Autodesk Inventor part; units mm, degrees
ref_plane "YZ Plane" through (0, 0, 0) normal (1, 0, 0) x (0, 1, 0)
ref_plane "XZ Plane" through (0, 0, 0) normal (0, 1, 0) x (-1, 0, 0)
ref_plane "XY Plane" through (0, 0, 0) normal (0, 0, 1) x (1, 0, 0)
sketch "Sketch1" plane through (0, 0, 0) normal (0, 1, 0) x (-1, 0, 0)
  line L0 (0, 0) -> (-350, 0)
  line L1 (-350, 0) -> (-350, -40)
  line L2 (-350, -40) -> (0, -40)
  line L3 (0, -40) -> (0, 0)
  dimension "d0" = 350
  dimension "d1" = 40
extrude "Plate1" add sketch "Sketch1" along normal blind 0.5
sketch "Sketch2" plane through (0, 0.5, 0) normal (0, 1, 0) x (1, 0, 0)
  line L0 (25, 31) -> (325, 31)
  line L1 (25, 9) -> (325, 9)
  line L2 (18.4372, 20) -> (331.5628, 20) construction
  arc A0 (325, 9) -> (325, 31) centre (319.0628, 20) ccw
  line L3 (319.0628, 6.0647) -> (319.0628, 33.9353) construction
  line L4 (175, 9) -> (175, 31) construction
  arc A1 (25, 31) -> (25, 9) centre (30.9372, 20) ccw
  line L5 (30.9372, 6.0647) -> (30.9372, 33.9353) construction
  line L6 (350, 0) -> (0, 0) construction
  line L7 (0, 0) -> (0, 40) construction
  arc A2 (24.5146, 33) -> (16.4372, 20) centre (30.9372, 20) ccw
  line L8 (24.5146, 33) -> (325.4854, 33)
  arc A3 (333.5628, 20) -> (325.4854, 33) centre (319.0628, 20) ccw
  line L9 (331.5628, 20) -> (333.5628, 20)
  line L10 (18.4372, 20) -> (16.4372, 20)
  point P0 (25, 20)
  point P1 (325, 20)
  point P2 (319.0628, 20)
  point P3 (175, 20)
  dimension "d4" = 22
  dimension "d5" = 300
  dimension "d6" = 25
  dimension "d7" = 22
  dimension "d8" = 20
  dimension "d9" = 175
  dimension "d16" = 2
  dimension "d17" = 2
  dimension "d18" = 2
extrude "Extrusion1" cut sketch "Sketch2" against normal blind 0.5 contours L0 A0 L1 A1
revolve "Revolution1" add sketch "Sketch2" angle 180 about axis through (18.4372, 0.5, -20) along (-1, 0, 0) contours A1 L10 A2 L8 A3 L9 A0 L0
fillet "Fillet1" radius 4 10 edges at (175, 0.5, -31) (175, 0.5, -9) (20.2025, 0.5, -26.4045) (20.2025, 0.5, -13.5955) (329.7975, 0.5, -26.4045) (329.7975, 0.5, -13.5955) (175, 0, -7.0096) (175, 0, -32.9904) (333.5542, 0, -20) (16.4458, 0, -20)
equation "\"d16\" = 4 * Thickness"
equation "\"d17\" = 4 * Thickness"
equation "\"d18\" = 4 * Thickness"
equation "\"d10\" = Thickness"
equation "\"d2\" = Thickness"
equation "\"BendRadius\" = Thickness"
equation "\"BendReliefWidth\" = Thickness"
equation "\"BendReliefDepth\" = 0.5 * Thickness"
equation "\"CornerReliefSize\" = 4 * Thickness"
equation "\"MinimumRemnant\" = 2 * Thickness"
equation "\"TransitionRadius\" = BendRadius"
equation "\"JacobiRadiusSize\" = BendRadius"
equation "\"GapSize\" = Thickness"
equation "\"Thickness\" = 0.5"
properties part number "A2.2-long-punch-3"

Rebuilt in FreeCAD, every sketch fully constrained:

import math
import FreeCAD as App
import Part
import Sketcher
from FreeCAD import Vector


def edges_at(feature, points):
    """Names of the edges that pass closest to the given points."""
    edges = feature.Shape.Edges
    near = lambda p: min(range(len(edges)), key=lambda i: edges[i].distToShape(Part.Vertex(*p))[0])
    return sorted({f"Edge{near(p) + 1}" for p in points})


def add_polygon(sketch, points):
    """Adds a closed chain of lines whose ends are joined by coincident constraints."""
    first, n = sketch.GeometryCount, len(points)
    for a, b in zip(points, points[1:] + points[:1]):
        sketch.addGeometry(Part.LineSegment(App.Vector(*a, 0), App.Vector(*b, 0)), False)
    for i in range(n):
        sketch.addConstraint(Sketcher.Constraint("Coincident", first + i, 2, first + (i + 1) % n, 1))

doc = App.newDocument("Part")
body = doc.addObject("PartDesign::Body", "Body")

# Sketch on XZ plane
sketch1 = body.newObject("Sketcher::SketchObject", "Sketch")
sketch1.AttachmentSupport = (doc.getObject("XZ_Plane"), [""])
sketch1.MapMode = "FlatFace"
add_polygon(sketch1, [(0, -40), (0, 0), (350, 0), (350, -40)])  # lines 0-3
sketch1.addConstraint(Sketcher.Constraint("Vertical", 0))
sketch1.addConstraint(Sketcher.Constraint("Horizontal", 1))
sketch1.addConstraint(Sketcher.Constraint("Vertical", 2))
sketch1.addConstraint(Sketcher.Constraint("Horizontal", 3))
sketch1.addConstraint(Sketcher.Constraint("Coincident", 0, 2, -1, 1))
sketch1.addConstraint(Sketcher.Constraint("DistanceX", 1, 1, 1, 2, 350.0))
sketch1.addConstraint(Sketcher.Constraint("DistanceY", 0, 1, 0, 2, 40.0))
pad1 = body.newObject("PartDesign::Pad", "Pad")
pad1.Profile = sketch1
pad1.Length = 0.5
pad1.Reversed = True

# Sketch on XZ plane
sketch2 = body.newObject("Sketcher::SketchObject", "Sketch001")
sketch2.AttachmentSupport = (doc.getObject("XZ_Plane"), [""])
sketch2.MapMode = "FlatFace"
sketch2.AttachmentOffset = App.Placement(Vector(0, 0, -0.5), App.Rotation())
sketch2.addGeometry(Part.LineSegment(Vector(325, -31, 0), Vector(25, -31, 0)), False)
sketch2.addGeometry(Part.ArcOfCircle(Part.Circle(Vector(30.9372, -20, 0), Vector(0, 0, 1), 12.500014), math.radians(118.357753), math.radians(241.642247)), False)
sketch2.addGeometry(Part.LineSegment(Vector(25, -9, 0), Vector(325, -9, 0)), False)
sketch2.addGeometry(Part.ArcOfCircle(Part.Circle(Vector(319.0628, -20, 0), Vector(0, 0, 1), 12.500014), math.radians(-61.642247), math.radians(61.642247)), False)
sketch2.addConstraint(Sketcher.Constraint("Coincident", 0, 2, 1, 2))
sketch2.addConstraint(Sketcher.Constraint("Coincident", 1, 1, 2, 1))
sketch2.addConstraint(Sketcher.Constraint("Coincident", 2, 2, 3, 2))
sketch2.addConstraint(Sketcher.Constraint("Coincident", 3, 1, 0, 1))
sketch2.addConstraint(Sketcher.Constraint("Horizontal", 0))
sketch2.addConstraint(Sketcher.Constraint("Horizontal", 2))
sketch2.addConstraint(Sketcher.Constraint("Equal", 1, 3))
sketch2.addConstraint(Sketcher.Constraint("Horizontal", 1, 3, 3, 3))
sketch2.addConstraint(Sketcher.Constraint("Vertical", 0, 2, 1, 1))
sketch2.addConstraint(Sketcher.Constraint("Radius", 1, 12.5))
sketch2.addConstraint(Sketcher.Constraint("DistanceX", 0, 2, 0, 1, 300.0))
sketch2.addConstraint(Sketcher.Constraint("DistanceY", 1, 3, -1, 1, 20.0))
sketch2.addConstraint(Sketcher.Constraint("DistanceX", -1, 1, 0, 2, 25.0))
sketch2.addConstraint(Sketcher.Constraint("DistanceY", 0, 2, 1, 1, 22.0))
pocket1 = body.newObject("PartDesign::Pocket", "Pocket")
pocket1.Profile = sketch2
pocket1.Length = 0.5
pocket1.Reversed = True

# Sketch on XZ plane
sketch3 = body.newObject("Sketcher::SketchObject", "Sketch002")
sketch3.AttachmentSupport = (doc.getObject("XZ_Plane"), [""])
sketch3.MapMode = "FlatFace"
sketch3.AttachmentOffset = App.Placement(Vector(0, 0, -0.5), App.Rotation())
sketch3.addGeometry(Part.ArcOfCircle(Part.Circle(Vector(30.9372, -20, 0), Vector(0, 0, 1), 12.500014), math.radians(180), math.radians(241.642247)), False)
sketch3.addGeometry(Part.LineSegment(Vector(25, -31, 0), Vector(325, -31, 0)), False)
sketch3.addGeometry(Part.ArcOfCircle(Part.Circle(Vector(319.0628, -20, 0), Vector(0, 0, 1), 12.500014), math.radians(-61.642247), math.radians(0)), False)
sketch3.addGeometry(Part.LineSegment(Vector(331.5628, -20, 0), Vector(333.5628, -20, 0)), False)
sketch3.addGeometry(Part.ArcOfCircle(Part.Circle(Vector(319.0628, -20, 0), Vector(0, 0, 1), 14.5), math.radians(-63.708502), math.radians(0)), False)
sketch3.addGeometry(Part.LineSegment(Vector(325.4854, -33, 0), Vector(24.5146, -33, 0)), False)
sketch3.addGeometry(Part.ArcOfCircle(Part.Circle(Vector(30.9372, -20, 0), Vector(0, 0, 1), 14.499993), math.radians(180), math.radians(243.708502)), False)
sketch3.addGeometry(Part.LineSegment(Vector(16.4372, -20, 0), Vector(18.4372, -20, 0)), False)
sketch3.addGeometry(Part.LineSegment(Vector(333.5628, -20, 0), Vector(16.4372, -20, 0)), True)  # axis
sketch3.addConstraint(Sketcher.Constraint("Coincident", 0, 2, 1, 1))
sketch3.addConstraint(Sketcher.Constraint("Coincident", 1, 2, 2, 1))
sketch3.addConstraint(Sketcher.Constraint("Coincident", 2, 2, 3, 1))
sketch3.addConstraint(Sketcher.Constraint("Coincident", 3, 2, 4, 2))
sketch3.addConstraint(Sketcher.Constraint("Coincident", 4, 1, 5, 1))
sketch3.addConstraint(Sketcher.Constraint("Coincident", 5, 2, 6, 2))
sketch3.addConstraint(Sketcher.Constraint("Coincident", 6, 1, 7, 1))
sketch3.addConstraint(Sketcher.Constraint("Coincident", 7, 2, 0, 1))
sketch3.addConstraint(Sketcher.Constraint("Horizontal", 1))
sketch3.addConstraint(Sketcher.Constraint("Horizontal", 3))
sketch3.addConstraint(Sketcher.Constraint("Horizontal", 5))
sketch3.addConstraint(Sketcher.Constraint("Horizontal", 7))
sketch3.addConstraint(Sketcher.Constraint("Horizontal", 8))
sketch3.addConstraint(Sketcher.Constraint("Coincident", 4, 3, 2, 3))
sketch3.addConstraint(Sketcher.Constraint("Coincident", 6, 3, 0, 3))
sketch3.addConstraint(Sketcher.Constraint("Coincident", 8, 1, 3, 2))
sketch3.addConstraint(Sketcher.Constraint("Coincident", 8, 2, 6, 1))
sketch3.addConstraint(Sketcher.Constraint("Equal", 0, 2))
sketch3.addConstraint(Sketcher.Constraint("Equal", 4, 6))
sketch3.addConstraint(Sketcher.Constraint("Horizontal", 0, 3, 2, 3))
sketch3.addConstraint(Sketcher.Constraint("Horizontal", 6, 3, 2, 2))
sketch3.addConstraint(Sketcher.Constraint("Radius", 0, 12.5))
sketch3.addConstraint(Sketcher.Constraint("DistanceX", 1, 1, 1, 2, 300.0))
sketch3.addConstraint(Sketcher.Constraint("DistanceX", 3, 1, 3, 2, 2.0))
sketch3.addConstraint(Sketcher.Constraint("DistanceY", 0, 3, -1, 1, 20.0))
sketch3.addConstraint(Sketcher.Constraint("DistanceX", -1, 1, 0, 2, 25.0))
sketch3.addConstraint(Sketcher.Constraint("DistanceY", 4, 1, 1, 2, 2.0))
sketch3.addConstraint(Sketcher.Constraint("DistanceY", 0, 2, -1, 1, 31.0))
revolution = body.newObject("PartDesign::Revolution", "Revolution")
revolution.Profile = sketch3
revolution.ReferenceAxis = (sketch3, ["Axis0"])
revolution.Angle = 180
doc.recompute()

fillet = body.newObject("PartDesign::Fillet", "Fillet")
fillet.Base = (revolution, edges_at(revolution, [
    (175, 0.5, -31),
    (175, 0.5, -9),
    (20.203, 0.5, -26.404),
    (20.203, 0.5, -13.595),
    (329.798, 0.5, -26.404),
    (329.798, 0.5, -13.595),
    (175, 0, -7.01),
    (175, 0, -32.99),
    (333.554, 0, -20),
    (16.446, 0, -20),
]))
fillet.Radius = 4

doc.recompute()
